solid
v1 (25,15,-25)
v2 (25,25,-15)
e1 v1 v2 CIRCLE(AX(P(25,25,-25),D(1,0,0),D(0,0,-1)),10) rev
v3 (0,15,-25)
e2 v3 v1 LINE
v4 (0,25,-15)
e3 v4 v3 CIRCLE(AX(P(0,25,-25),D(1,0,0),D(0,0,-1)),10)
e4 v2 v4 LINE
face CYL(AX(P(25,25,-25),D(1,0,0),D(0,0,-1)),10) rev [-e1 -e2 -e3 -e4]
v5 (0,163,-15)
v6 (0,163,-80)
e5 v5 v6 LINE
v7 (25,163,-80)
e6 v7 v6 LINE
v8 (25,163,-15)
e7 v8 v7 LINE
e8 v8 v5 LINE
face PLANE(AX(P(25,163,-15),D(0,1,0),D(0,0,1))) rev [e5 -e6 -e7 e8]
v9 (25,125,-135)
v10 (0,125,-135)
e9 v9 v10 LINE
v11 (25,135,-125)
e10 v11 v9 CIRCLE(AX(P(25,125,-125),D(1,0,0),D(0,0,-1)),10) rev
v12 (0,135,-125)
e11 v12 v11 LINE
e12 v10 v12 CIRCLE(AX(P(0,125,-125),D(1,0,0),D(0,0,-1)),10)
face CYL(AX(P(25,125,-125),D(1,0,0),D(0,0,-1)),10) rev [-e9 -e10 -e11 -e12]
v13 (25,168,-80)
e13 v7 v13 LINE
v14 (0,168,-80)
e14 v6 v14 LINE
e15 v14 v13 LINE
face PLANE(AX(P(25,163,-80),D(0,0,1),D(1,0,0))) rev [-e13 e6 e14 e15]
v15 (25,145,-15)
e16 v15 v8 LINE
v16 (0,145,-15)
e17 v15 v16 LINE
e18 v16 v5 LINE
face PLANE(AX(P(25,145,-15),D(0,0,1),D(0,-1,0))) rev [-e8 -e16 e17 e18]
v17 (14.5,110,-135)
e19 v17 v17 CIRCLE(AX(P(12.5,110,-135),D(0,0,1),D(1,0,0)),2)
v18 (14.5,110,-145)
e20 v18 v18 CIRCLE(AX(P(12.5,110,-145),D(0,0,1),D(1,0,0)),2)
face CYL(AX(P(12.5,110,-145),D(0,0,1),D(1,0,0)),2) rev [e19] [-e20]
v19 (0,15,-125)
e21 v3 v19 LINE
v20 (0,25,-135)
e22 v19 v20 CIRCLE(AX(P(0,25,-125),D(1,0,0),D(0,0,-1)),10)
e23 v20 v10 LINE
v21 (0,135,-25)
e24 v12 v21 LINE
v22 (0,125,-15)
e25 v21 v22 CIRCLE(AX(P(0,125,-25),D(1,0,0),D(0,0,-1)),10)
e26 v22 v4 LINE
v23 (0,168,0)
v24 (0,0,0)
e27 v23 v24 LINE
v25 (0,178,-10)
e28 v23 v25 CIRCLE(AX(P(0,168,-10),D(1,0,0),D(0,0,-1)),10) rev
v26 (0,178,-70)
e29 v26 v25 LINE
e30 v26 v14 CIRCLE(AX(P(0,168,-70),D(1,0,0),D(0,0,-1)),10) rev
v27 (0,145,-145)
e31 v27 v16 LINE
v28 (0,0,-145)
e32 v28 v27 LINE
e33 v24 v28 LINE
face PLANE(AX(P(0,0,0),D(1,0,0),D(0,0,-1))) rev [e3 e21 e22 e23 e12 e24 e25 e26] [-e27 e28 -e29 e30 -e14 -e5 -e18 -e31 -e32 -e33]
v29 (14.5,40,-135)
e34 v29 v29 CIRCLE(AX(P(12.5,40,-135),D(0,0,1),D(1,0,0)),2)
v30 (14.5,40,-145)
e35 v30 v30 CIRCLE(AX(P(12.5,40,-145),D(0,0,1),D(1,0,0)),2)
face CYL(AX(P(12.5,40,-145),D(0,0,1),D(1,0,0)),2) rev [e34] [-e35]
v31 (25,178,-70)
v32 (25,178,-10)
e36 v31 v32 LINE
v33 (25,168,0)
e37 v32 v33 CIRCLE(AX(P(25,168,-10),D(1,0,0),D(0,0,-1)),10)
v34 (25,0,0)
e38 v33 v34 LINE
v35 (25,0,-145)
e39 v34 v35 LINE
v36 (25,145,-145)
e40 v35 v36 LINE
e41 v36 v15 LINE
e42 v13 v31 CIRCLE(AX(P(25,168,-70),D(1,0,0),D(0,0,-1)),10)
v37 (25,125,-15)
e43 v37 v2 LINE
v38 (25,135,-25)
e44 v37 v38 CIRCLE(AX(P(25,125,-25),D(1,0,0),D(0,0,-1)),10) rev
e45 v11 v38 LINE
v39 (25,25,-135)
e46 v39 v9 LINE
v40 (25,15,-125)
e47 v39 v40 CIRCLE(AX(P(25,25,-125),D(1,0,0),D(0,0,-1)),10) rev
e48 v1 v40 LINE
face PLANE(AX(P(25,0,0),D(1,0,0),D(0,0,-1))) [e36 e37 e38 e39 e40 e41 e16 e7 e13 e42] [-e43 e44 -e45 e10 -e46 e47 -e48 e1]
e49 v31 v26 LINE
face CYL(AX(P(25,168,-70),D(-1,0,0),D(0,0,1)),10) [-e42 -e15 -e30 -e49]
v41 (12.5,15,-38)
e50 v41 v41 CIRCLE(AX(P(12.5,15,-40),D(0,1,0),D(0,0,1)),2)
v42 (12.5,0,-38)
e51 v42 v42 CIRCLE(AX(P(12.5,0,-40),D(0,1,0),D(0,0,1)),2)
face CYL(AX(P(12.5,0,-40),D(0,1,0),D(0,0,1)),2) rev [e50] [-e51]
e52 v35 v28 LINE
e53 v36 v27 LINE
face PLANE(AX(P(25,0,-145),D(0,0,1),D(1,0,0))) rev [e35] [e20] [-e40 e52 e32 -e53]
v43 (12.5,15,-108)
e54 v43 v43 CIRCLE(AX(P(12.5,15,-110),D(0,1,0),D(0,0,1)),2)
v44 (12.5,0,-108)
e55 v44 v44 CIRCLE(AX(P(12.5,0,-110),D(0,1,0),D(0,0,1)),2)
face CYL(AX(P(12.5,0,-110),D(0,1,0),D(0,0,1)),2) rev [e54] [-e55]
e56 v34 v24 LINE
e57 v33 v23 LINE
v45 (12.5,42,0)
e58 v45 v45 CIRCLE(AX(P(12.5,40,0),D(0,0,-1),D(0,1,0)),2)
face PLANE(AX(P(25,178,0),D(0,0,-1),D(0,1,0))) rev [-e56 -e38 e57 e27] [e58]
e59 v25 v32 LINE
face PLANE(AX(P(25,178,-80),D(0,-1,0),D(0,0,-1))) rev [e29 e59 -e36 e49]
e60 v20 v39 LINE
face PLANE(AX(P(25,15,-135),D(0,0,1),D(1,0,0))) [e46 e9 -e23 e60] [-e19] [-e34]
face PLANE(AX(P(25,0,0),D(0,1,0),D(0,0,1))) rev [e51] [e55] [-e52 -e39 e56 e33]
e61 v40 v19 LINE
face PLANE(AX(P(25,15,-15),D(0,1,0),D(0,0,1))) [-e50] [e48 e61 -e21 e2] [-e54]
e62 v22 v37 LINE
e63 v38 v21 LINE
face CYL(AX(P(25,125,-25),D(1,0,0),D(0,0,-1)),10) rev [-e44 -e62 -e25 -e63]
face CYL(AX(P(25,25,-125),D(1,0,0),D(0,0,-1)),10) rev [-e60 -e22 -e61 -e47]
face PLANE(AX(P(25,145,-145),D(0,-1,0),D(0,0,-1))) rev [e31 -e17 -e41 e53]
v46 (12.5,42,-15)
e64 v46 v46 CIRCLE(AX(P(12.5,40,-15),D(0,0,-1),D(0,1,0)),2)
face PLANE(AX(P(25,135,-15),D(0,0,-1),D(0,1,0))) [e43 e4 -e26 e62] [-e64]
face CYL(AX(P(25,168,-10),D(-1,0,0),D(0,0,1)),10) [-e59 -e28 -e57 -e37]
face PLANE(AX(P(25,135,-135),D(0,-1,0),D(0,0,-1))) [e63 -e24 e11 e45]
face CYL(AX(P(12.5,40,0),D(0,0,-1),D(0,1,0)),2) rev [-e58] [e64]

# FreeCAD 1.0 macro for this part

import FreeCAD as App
import Part
import Sketcher
from FreeCAD import Vector
Q = App.Units.Quantity


def edges_at(feature, points):
    """Names of the edges that pass closest to the given points."""
    edges = feature.Shape.Edges
    near = lambda p: min(range(len(edges)), key=lambda i: edges[i].distToShape(Part.Vertex(*p))[0])
    return sorted({f"Edge{near(p) + 1}" for p in points})

doc = App.newDocument("Part")
body = doc.addObject("PartDesign::Body", "Body")

# Sketch on YZ plane
sketch1 = body.newObject("Sketcher::SketchObject", "Sketch")
sketch1.AttachmentSupport = (doc.getObject("YZ_Plane"), [""])
sketch1.MapMode = "FlatFace"
sketch1.addGeometry([
    Part.LineSegment(Vector(0, 0, 0), Vector(0, -145, 0)),  # 0
    Part.LineSegment(Vector(0, -145, 0), Vector(145, -145, 0)),  # 1
    Part.LineSegment(Vector(145, -145, 0), Vector(145, -15, 0)),  # 2
    Part.LineSegment(Vector(145, -15, 0), Vector(163, -15, 0)),  # 3
    Part.LineSegment(Vector(163, -15, 0), Vector(163, -80, 0)),  # 4
    Part.LineSegment(Vector(163, -80, 0), Vector(178, -80, 0)),  # 5
    Part.LineSegment(Vector(178, -80, 0), Vector(178, 0, 0)),  # 6
    Part.LineSegment(Vector(178, 0, 0), Vector(0, 0, 0)),  # 7
    Part.LineSegment(Vector(15, -135, 0), Vector(15, -15, 0)),  # 8
    Part.LineSegment(Vector(15, -15, 0), Vector(135, -15, 0)),  # 9
    Part.LineSegment(Vector(135, -15, 0), Vector(135, -135, 0)),  # 10
    Part.LineSegment(Vector(135, -135, 0), Vector(15, -135, 0)),  # 11
], False)
sketch1.addConstraint([
    Sketcher.Constraint("Coincident", 0, 2, 1, 1),
    Sketcher.Constraint("Coincident", 1, 2, 2, 1),
    Sketcher.Constraint("Coincident", 2, 2, 3, 1),
    Sketcher.Constraint("Coincident", 3, 2, 4, 1),
    Sketcher.Constraint("Coincident", 4, 2, 5, 1),
    Sketcher.Constraint("Coincident", 5, 2, 6, 1),
    Sketcher.Constraint("Coincident", 6, 2, 7, 1),
    Sketcher.Constraint("Coincident", 7, 2, 0, 1),
    Sketcher.Constraint("Coincident", 8, 2, 9, 1),
    Sketcher.Constraint("Coincident", 9, 2, 10, 1),
    Sketcher.Constraint("Coincident", 10, 2, 11, 1),
    Sketcher.Constraint("Coincident", 11, 2, 8, 1),
    Sketcher.Constraint("Vertical", 0),
    Sketcher.Constraint("Horizontal", 1),
    Sketcher.Constraint("Vertical", 2),
    Sketcher.Constraint("Horizontal", 3),
    Sketcher.Constraint("Vertical", 4),
    Sketcher.Constraint("Horizontal", 5),
    Sketcher.Constraint("Vertical", 6),
    Sketcher.Constraint("Horizontal", 7),
    Sketcher.Constraint("Vertical", 8),
    Sketcher.Constraint("Horizontal", 9),
    Sketcher.Constraint("Vertical", 10),
    Sketcher.Constraint("Horizontal", 11),
    Sketcher.Constraint("Coincident", 7, 2, -1, 1),
    Sketcher.Constraint("Horizontal", 3, 2, 8, 2),
    Sketcher.Constraint("Equal", 1, 0),
    Sketcher.Constraint("Equal", 11, 8),
    Sketcher.Constraint("DistanceX", 1, 1, 1, 2, Q("145 mm")),
    Sketcher.Constraint("DistanceX", 3, 1, 3, 2, Q("18 mm")),
    Sketcher.Constraint("DistanceX", 5, 1, 5, 2, Q("15 mm")),
    Sketcher.Constraint("DistanceX", 9, 1, 9, 2, Q("120 mm")),
    Sketcher.Constraint("DistanceY", 2, 1, 2, 2, Q("130 mm")),
    Sketcher.Constraint("DistanceY", 4, 2, 4, 1, Q("65 mm")),
    Sketcher.Constraint("DistanceX", -1, 1, 8, 2, Q("15 mm")),
])
pad1 = body.newObject("PartDesign::Pad", "Pad")
pad1.Profile = sketch1
pad1.Length = 25

# Sketch on XZ plane
sketch2 = body.newObject("Sketcher::SketchObject", "Sketch001")
sketch2.AttachmentSupport = (doc.getObject("XZ_Plane"), [""])
sketch2.MapMode = "FlatFace"
sketch2.AttachmentOffset = App.Placement(Vector(0, 0, -15), App.Rotation())
sketch2.addGeometry([
    Part.Circle(Vector(12.5, -40, 0), Vector(0, 0, 1), 2),
    Part.Circle(Vector(12.5, -110, 0), Vector(0, 0, 1), 2),
], False)
sketch2.addConstraint([
    Sketcher.Constraint("Equal", 0, 1),
    Sketcher.Constraint("Vertical", 0, 3, 1, 3),
    Sketcher.Constraint("Diameter", 0, Q("4 mm")),
    Sketcher.Constraint("DistanceY", 0, 3, -1, 1, Q("40 mm")),
    Sketcher.Constraint("DistanceY", 1, 3, -1, 1, Q("110 mm")),
    Sketcher.Constraint("DistanceX", -1, 1, 0, 3, Q("12.5 mm")),
])
pocket1 = body.newObject("PartDesign::Pocket", "Pocket")
pocket1.Profile = sketch2
pocket1.Type = "ThroughAll"
pocket1.Reversed = True

# Sketch on XY plane
sketch3 = body.newObject("Sketcher::SketchObject", "Sketch002")
sketch3.AttachmentSupport = (doc.getObject("XY_Plane"), [""])
sketch3.MapMode = "FlatFace"
sketch3.AttachmentOffset = App.Placement(Vector(0, 0, -135), App.Rotation())
sketch3.addGeometry([
    Part.Circle(Vector(12.5, 40, 0), Vector(0, 0, 1), 2),
    Part.Circle(Vector(12.5, 110, 0), Vector(0, 0, 1), 2),
], False)
sketch3.addConstraint([
    Sketcher.Constraint("Equal", 0, 1),
    Sketcher.Constraint("Vertical", 0, 3, 1, 3),
    Sketcher.Constraint("Diameter", 0, Q("4 mm")),
    Sketcher.Constraint("DistanceY", -1, 1, 0, 3, Q("40 mm")),
    Sketcher.Constraint("DistanceY", -1, 1, 1, 3, Q("110 mm")),
    Sketcher.Constraint("DistanceX", -1, 1, 0, 3, Q("12.5 mm")),
])
pocket2 = body.newObject("PartDesign::Pocket", "Pocket001")
pocket2.Profile = sketch3
pocket2.Type = "ThroughAll"

# Sketch on XY plane
sketch4 = body.newObject("Sketcher::SketchObject", "Sketch003")
sketch4.AttachmentSupport = (doc.getObject("XY_Plane"), [""])
sketch4.MapMode = "FlatFace"
sketch4.AttachmentOffset = App.Placement(Vector(0, 0, -15), App.Rotation())
sketch4.addGeometry(Part.Circle(Vector(12.5, 40, 0), Vector(0, 0, 1), 2), False)
sketch4.addConstraint([
    Sketcher.Constraint("Diameter", 0, Q("4 mm")),
    Sketcher.Constraint("DistanceY", -1, 1, 0, 3, Q("40 mm")),
    Sketcher.Constraint("DistanceX", -1, 1, 0, 3, Q("12.5 mm")),
])
pocket3 = body.newObject("PartDesign::Pocket", "Pocket002")
pocket3.Profile = sketch4
pocket3.Type = "ThroughAll"
pocket3.Reversed = True
doc.recompute()

fillet = body.newObject("PartDesign::Fillet", "Fillet")
fillet.Base = (pocket3, edges_at(pocket3, [(12.5, 178, 0), (12.5, 178, -80)]))
fillet.Radius = 10
doc.recompute()

fillet2 = body.newObject("PartDesign::Fillet", "Fillet001")
fillet2.Base = (fillet, edges_at(fillet, [
    (12.5, 135, -135),
    (12.5, 135, -15),
    (12.5, 15, -15),
    (12.5, 15, -135),
]))
fillet2.Radius = 10

doc.recompute()
